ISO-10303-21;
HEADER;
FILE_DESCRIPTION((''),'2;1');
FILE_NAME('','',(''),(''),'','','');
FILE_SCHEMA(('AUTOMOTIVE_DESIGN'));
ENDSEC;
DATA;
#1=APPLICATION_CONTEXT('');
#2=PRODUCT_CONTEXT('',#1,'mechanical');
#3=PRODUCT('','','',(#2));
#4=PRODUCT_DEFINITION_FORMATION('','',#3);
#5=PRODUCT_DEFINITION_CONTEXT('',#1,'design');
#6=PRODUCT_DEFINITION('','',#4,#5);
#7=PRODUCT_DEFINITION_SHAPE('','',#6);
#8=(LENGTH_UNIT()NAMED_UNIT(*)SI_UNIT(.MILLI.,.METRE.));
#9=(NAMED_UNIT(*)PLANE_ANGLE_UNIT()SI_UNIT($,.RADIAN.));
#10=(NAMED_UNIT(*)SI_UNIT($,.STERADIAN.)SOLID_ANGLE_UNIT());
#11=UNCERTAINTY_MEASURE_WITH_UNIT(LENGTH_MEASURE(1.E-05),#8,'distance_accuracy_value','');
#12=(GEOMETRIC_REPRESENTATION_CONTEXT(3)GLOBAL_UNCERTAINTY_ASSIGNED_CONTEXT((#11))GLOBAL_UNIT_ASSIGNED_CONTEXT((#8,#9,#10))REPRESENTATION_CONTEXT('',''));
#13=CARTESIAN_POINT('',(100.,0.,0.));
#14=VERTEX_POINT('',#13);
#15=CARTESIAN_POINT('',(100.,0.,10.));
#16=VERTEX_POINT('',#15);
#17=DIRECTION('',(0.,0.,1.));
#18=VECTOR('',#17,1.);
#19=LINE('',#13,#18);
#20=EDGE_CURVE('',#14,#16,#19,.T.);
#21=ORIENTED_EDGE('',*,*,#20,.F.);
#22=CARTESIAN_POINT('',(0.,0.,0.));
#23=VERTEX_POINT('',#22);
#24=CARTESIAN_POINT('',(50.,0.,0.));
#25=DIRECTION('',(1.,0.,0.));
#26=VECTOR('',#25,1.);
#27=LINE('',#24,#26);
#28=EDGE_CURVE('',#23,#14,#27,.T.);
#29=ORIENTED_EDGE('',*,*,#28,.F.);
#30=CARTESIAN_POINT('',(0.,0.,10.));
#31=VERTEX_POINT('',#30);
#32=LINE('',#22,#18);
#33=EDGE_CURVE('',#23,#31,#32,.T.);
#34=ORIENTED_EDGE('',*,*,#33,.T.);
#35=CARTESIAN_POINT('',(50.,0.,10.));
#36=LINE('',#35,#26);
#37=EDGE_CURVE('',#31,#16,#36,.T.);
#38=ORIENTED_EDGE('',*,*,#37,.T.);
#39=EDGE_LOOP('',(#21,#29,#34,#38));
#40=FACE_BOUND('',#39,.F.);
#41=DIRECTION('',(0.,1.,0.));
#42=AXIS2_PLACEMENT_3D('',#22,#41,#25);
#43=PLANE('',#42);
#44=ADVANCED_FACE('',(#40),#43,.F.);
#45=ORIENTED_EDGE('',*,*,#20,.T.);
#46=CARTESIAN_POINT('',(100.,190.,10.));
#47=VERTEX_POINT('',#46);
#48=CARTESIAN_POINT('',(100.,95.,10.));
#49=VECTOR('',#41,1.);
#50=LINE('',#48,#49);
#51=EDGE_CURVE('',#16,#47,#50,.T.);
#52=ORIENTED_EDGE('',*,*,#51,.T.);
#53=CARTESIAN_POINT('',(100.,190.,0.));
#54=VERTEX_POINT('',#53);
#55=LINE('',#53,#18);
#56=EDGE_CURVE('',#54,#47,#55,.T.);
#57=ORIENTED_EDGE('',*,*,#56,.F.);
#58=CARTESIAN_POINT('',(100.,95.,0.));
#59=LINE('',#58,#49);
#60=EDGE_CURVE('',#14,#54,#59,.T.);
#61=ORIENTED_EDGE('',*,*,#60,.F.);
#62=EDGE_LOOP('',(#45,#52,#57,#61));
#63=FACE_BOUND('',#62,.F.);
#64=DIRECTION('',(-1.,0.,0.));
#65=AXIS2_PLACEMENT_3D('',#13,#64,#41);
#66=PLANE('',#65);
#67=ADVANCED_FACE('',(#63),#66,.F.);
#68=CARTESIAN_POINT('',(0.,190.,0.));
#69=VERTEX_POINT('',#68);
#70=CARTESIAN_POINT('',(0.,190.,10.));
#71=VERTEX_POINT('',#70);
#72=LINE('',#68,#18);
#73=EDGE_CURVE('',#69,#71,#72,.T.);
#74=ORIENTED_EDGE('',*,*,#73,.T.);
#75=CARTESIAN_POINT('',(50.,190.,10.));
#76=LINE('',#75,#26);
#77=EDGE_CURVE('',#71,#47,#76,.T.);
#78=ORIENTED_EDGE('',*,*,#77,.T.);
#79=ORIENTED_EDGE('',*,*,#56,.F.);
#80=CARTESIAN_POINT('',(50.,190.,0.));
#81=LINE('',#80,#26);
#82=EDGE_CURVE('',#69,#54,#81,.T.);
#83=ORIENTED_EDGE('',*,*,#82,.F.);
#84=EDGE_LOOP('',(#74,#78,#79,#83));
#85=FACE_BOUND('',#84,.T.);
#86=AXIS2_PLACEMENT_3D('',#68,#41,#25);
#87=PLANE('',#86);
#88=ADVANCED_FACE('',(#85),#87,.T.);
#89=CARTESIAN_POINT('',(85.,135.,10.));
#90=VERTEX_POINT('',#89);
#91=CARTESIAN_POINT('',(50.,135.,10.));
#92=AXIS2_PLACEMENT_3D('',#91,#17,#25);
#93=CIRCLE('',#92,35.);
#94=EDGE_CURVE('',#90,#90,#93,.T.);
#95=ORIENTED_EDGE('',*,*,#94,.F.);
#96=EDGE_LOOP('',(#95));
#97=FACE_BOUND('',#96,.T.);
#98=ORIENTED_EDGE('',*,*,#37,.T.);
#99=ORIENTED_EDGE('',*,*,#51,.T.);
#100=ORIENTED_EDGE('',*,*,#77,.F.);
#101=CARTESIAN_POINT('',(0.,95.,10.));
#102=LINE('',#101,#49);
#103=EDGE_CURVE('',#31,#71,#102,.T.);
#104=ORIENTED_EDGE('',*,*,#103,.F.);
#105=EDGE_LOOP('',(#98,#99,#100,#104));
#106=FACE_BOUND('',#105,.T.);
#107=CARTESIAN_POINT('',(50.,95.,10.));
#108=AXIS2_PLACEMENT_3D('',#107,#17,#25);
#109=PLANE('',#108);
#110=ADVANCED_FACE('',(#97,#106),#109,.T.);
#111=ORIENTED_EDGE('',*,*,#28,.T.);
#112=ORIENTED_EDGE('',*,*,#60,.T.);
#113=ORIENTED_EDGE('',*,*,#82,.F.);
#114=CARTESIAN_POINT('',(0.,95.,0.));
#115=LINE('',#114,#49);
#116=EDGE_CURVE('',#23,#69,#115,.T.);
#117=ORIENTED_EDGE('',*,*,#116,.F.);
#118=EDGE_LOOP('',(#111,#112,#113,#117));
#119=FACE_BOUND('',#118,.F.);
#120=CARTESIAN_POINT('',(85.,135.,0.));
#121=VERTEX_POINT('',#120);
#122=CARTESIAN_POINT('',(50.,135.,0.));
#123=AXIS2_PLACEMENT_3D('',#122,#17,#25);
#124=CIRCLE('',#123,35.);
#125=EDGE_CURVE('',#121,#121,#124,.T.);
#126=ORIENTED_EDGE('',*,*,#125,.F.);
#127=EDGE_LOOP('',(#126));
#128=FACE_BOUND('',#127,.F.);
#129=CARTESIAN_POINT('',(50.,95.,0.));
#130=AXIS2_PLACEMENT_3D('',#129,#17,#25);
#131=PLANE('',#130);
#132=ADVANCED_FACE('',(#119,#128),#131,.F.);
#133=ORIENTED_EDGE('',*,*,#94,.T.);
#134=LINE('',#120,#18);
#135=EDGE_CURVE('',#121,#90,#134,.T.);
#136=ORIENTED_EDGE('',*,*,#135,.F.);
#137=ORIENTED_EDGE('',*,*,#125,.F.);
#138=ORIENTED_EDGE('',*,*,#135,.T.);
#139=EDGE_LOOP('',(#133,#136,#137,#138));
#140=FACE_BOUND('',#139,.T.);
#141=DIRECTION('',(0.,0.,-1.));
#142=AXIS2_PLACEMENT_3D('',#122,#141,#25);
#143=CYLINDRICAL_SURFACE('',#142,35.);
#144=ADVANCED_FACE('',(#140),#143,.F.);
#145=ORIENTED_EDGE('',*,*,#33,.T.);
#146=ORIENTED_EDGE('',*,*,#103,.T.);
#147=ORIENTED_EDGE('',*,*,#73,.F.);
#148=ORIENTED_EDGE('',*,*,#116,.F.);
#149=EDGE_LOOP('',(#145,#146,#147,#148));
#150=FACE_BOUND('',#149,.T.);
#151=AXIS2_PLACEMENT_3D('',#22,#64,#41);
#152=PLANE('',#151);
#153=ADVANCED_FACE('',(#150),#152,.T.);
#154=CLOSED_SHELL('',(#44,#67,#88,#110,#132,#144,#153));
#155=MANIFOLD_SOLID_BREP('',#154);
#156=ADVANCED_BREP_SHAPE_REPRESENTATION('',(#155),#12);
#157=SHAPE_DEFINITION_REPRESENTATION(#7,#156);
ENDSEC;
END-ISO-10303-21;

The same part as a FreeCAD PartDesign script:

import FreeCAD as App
import Part
import Sketcher
Q = App.Units.Quantity


def add_polygon(sketch, points):
    """Adds a closed chain of lines whose ends are joined by coincident constraints."""
    first, n = sketch.GeometryCount, len(points)
    for a, b in zip(points, points[1:] + points[:1]):
        sketch.addGeometry(Part.LineSegment(App.Vector(*a, 0), App.Vector(*b, 0)), False)
    for i in range(n):
        sketch.addConstraint(Sketcher.Constraint("Coincident", first + i, 2, first + (i + 1) % n, 1))

doc = App.newDocument("Part")
params = doc.addObject("Spreadsheet::Sheet", "Params")
for row, (alias, value) in enumerate([
    ("sketch1_diameter", "70 mm"),
    ("sketch1_width", "100 mm"),
    ("sketch1_height", "190 mm"),
    ("pad1_length", "10 mm"),
], start=1):
    params.set(f"A{row}", alias)
    params.set(f"B{row}", "=" + value)
    params.setAlias(f"B{row}", alias)

body = doc.addObject("PartDesign::Body", "Body")

# Sketch on XY plane
sketch1 = doc.addObject("Sketcher::SketchObject", "Sketch")
body.addObject(sketch1)
sketch1.AttachmentSupport = (doc.XY_Plane, [""])
sketch1.MapMode = "FlatFace"
add_polygon(sketch1, [(0, 190), (0, 0), (100, 0), (100, 190)])  # lines 0-3
sketch1.addGeometry(Part.Circle(App.Vector(50, 135, 0), App.Vector(0, 0, 1), 35), False)  # 4
sketch1.addConstraint(Sketcher.Constraint("Vertical", 0))
sketch1.addConstraint(Sketcher.Constraint("Horizontal", 1))
sketch1.addConstraint(Sketcher.Constraint("Vertical", 2))
sketch1.addConstraint(Sketcher.Constraint("Horizontal", 3))
sketch1.addConstraint(Sketcher.Constraint("Coincident", 0, 2, -1, 1))
sketch1.addConstraint(Sketcher.Constraint("Diameter", 4, Q("70 mm")))
sketch1.addConstraint(Sketcher.Constraint("DistanceX", 1, 1, 1, 2, Q("100 mm")))
sketch1.addConstraint(Sketcher.Constraint("DistanceY", 0, 2, 0, 1, Q("190 mm")))
sketch1.addConstraint(Sketcher.Constraint("DistanceX", -1, 1, 4, 3, Q("50 mm")))
sketch1.addConstraint(Sketcher.Constraint("DistanceY", -1, 1, 4, 3, Q("135 mm")))
sketch1.setExpression("Constraints[9]", "Params.sketch1_diameter")
sketch1.setExpression("Constraints[10]", "Params.sketch1_width")
sketch1.setExpression("Constraints[11]", "Params.sketch1_height")
pad1 = doc.addObject("PartDesign::Pad", "Pad")
body.addObject(pad1)
pad1.Profile = sketch1
pad1.setExpression("Length", "Params.pad1_length")

doc.recompute()
